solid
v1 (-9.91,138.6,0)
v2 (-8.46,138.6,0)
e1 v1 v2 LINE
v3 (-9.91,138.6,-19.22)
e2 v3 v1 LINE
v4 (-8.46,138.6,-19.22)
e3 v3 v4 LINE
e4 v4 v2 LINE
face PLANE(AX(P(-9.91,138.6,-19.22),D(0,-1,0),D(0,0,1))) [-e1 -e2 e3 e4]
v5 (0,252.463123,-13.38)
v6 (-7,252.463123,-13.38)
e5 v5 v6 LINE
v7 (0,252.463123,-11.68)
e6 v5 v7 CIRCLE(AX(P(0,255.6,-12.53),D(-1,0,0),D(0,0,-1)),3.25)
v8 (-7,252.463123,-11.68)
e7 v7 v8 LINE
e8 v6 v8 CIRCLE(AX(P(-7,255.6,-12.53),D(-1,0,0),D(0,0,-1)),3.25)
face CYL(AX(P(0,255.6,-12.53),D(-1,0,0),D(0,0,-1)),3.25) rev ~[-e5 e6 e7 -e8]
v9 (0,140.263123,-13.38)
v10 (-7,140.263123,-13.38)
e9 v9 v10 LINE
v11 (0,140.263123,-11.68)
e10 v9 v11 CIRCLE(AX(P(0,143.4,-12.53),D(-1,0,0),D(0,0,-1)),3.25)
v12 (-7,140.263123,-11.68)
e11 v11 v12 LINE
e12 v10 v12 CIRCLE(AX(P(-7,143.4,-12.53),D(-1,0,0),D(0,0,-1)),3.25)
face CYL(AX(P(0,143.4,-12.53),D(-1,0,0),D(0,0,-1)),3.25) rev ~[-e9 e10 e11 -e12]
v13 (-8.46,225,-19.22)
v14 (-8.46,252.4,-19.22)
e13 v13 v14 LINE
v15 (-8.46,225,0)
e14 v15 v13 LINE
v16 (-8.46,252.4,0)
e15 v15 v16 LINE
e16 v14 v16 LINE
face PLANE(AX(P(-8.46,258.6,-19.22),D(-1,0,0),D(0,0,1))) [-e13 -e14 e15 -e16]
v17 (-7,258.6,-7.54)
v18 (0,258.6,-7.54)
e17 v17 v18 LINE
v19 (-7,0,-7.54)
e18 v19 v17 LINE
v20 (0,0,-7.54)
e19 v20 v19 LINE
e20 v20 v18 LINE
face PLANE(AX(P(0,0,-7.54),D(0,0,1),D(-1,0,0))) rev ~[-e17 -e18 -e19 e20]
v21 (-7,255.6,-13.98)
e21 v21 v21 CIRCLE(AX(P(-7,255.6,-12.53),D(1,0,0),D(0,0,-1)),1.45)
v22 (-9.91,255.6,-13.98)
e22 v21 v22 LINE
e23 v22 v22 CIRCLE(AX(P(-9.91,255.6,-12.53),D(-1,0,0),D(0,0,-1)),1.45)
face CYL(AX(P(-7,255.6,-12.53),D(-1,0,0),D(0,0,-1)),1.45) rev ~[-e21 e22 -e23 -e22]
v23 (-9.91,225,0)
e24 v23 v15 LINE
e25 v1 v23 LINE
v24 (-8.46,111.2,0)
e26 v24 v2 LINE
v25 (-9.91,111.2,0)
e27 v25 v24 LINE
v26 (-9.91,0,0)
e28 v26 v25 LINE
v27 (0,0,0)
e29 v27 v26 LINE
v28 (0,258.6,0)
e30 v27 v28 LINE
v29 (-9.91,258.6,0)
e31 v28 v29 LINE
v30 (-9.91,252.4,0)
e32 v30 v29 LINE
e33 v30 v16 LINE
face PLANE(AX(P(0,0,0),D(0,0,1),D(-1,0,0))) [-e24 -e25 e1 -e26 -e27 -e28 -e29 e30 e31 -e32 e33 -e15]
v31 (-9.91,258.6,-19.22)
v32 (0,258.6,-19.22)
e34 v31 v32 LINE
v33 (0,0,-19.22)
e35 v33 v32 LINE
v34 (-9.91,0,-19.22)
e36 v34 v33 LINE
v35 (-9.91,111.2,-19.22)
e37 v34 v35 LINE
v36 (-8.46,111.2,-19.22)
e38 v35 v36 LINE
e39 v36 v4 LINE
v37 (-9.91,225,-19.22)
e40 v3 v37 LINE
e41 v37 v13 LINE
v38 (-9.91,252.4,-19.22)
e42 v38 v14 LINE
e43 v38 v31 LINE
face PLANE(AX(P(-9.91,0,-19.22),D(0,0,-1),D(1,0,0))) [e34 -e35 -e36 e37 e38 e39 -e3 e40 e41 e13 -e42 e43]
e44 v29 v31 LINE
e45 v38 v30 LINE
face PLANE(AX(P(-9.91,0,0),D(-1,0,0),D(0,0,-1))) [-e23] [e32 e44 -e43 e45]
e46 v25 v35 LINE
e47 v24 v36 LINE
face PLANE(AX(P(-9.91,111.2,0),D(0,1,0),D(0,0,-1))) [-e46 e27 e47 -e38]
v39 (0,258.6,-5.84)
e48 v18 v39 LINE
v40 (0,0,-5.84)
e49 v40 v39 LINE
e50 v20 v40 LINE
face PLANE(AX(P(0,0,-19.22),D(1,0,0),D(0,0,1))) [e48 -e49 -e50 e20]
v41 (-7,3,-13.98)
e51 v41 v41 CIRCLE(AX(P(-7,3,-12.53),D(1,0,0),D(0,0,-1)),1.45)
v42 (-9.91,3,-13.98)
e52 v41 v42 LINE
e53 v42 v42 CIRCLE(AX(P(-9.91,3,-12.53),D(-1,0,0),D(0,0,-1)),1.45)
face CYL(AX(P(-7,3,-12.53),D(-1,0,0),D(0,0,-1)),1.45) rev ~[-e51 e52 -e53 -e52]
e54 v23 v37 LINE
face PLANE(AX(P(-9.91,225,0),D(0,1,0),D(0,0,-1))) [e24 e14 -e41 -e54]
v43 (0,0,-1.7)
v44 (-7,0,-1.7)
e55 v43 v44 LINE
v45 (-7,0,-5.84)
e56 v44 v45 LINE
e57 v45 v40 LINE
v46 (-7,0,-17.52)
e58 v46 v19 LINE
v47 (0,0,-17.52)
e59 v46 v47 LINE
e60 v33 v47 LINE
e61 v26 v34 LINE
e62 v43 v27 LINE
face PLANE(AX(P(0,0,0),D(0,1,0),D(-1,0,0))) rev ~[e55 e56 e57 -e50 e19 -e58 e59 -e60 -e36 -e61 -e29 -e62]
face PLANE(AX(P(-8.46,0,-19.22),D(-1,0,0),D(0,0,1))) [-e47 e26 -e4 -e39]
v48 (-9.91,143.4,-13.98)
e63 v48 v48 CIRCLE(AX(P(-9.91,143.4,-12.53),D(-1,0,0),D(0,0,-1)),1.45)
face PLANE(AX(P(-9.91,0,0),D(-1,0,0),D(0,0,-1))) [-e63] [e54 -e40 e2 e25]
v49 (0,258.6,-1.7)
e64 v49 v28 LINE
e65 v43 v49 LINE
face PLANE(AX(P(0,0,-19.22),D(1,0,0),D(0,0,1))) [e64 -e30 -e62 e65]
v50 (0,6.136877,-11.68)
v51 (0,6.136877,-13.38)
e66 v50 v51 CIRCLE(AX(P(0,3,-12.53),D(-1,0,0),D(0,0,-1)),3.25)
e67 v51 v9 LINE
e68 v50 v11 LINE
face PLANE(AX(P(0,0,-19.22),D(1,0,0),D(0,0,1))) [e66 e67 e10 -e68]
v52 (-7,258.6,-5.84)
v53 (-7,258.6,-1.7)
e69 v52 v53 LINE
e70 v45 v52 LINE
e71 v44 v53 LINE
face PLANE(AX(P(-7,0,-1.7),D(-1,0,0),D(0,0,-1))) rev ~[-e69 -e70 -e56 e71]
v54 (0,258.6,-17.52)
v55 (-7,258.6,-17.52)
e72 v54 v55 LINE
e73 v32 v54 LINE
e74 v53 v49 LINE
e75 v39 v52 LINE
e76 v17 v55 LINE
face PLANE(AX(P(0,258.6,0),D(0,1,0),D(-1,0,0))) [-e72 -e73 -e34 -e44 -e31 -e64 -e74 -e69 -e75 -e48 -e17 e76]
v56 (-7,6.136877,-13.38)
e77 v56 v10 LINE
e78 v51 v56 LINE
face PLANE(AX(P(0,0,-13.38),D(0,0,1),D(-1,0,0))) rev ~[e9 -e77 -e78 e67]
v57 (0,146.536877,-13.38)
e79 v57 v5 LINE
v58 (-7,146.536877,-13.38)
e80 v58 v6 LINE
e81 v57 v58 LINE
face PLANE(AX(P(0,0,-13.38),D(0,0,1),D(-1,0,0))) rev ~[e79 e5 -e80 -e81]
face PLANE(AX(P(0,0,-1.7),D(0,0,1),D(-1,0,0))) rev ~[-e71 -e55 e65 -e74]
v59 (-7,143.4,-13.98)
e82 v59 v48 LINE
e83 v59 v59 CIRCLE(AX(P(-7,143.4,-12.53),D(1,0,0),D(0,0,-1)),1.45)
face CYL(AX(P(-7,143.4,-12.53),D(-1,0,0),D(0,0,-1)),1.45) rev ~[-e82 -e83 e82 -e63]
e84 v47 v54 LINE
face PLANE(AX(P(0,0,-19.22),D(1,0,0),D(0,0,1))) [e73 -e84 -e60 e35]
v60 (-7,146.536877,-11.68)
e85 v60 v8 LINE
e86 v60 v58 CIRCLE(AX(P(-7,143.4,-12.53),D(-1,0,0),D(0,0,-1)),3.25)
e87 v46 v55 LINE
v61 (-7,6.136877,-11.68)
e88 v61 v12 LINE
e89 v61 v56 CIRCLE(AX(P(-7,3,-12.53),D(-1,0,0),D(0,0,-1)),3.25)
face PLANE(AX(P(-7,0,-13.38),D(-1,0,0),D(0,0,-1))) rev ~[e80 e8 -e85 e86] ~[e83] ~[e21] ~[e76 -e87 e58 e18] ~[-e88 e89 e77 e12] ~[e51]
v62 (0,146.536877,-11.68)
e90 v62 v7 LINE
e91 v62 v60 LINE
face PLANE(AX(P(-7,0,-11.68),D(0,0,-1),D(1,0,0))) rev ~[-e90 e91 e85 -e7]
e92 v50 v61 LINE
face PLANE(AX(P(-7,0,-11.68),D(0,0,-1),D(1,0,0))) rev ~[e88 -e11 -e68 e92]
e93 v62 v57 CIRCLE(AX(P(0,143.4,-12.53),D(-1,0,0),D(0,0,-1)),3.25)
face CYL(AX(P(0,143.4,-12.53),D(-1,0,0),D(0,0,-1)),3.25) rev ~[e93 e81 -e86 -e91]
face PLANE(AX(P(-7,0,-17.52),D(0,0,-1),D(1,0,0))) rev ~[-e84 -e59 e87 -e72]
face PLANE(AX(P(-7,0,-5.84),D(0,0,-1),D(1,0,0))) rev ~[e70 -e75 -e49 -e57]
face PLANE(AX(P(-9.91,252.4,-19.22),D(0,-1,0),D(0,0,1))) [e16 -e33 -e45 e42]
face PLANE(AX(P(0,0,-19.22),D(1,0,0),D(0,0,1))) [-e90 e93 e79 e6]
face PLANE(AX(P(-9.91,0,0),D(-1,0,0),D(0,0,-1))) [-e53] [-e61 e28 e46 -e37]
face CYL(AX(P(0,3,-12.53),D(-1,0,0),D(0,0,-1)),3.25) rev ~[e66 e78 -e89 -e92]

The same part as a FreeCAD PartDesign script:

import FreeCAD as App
import Part
import Sketcher
from FreeCAD import Vector

doc = App.newDocument("Part")
body = doc.addObject("PartDesign::Body", "Body")

# Sketch on XZ plane
sketch1 = doc.addObject("Sketcher::SketchObject", "Sketch")
body.addObject(sketch1)
sketch1.AttachmentSupport = (doc.XZ_Plane, [""])
sketch1.MapMode = "FlatFace"
sketch1.addGeometry(Part.LineSegment(Vector(-10, 0, 0), Vector(0, 0, 0)), False)
sketch1.addGeometry(Part.LineSegment(Vector(0, 0, 0), Vector(0, -19, 0)), False)
sketch1.addGeometry(Part.LineSegment(Vector(0, -19, 0), Vector(-10, -19, 0)), False)
sketch1.addGeometry(Part.LineSegment(Vector(-10, -19, 0), Vector(-10, 0, 0)), False)
sketch1.addConstraint(Sketcher.Constraint("Coincident", 0, 2, 1, 1))
sketch1.addConstraint(Sketcher.Constraint("Coincident", 1, 2, 2, 1))
sketch1.addConstraint(Sketcher.Constraint("Coincident", 2, 2, 3, 1))
sketch1.addConstraint(Sketcher.Constraint("Coincident", 3, 2, 0, 1))
sketch1.addConstraint(Sketcher.Constraint("Horizontal", 0))
sketch1.addConstraint(Sketcher.Constraint("Vertical", 1))
sketch1.addConstraint(Sketcher.Constraint("Horizontal", 2))
sketch1.addConstraint(Sketcher.Constraint("Vertical", 3))
sketch1.addConstraint(Sketcher.Constraint("Coincident", 0, 2, -1, 1))
sketch1.addConstraint(Sketcher.Constraint("DistanceX", 0, 1, 0, 2, 9.91))
sketch1.addConstraint(Sketcher.Constraint("DistanceY", 1, 2, 1, 1, 19.22))
pad1 = doc.addObject("PartDesign::Pad", "Pad")
body.addObject(pad1)
pad1.Profile = sketch1
pad1.Length = 258.6
pad1.Reversed = True

# Sketch on XZ plane
sketch2 = doc.addObject("Sketcher::SketchObject", "Sketch001")
body.addObject(sketch2)
sketch2.AttachmentSupport = (doc.XZ_Plane, [""])
sketch2.MapMode = "FlatFace"
sketch2.addGeometry(Part.LineSegment(Vector(0, -5.8, 0), Vector(0, -1.7, 0)), False)
sketch2.addGeometry(Part.LineSegment(Vector(0, -1.7, 0), Vector(-7, -1.7, 0)), False)
sketch2.addGeometry(Part.LineSegment(Vector(-7, -1.7, 0), Vector(-7, -5.8, 0)), False)
sketch2.addGeometry(Part.LineSegment(Vector(-7, -5.8, 0), Vector(0, -5.8, 0)), False)
sketch2.addConstraint(Sketcher.Constraint("Coincident", 0, 2, 1, 1))
sketch2.addConstraint(Sketcher.Constraint("Coincident", 1, 2, 2, 1))
sketch2.addConstraint(Sketcher.Constraint("Coincident", 2, 2, 3, 1))
sketch2.addConstraint(Sketcher.Constraint("Coincident", 3, 2, 0, 1))
sketch2.addConstraint(Sketcher.Constraint("Vertical", 0))
sketch2.addConstraint(Sketcher.Constraint("Horizontal", 1))
sketch2.addConstraint(Sketcher.Constraint("Vertical", 2))
sketch2.addConstraint(Sketcher.Constraint("Horizontal", 3))
sketch2.addConstraint(Sketcher.Constraint("PointOnObject", 0, 2, -2))
sketch2.addConstraint(Sketcher.Constraint("DistanceX", 1, 2, 1, 1, 7.0))
sketch2.addConstraint(Sketcher.Constraint("DistanceY", 0, 1, 0, 2, 4.14))
sketch2.addConstraint(Sketcher.Constraint("DistanceY", 0, 2, -1, 1, 1.7))
pocket1 = doc.addObject("PartDesign::Pocket", "Pocket")
body.addObject(pocket1)
pocket1.Profile = sketch2
pocket1.Type = "ThroughAll"

# Sketch on XZ plane
sketch3 = doc.addObject("Sketcher::SketchObject", "Sketch002")
body.addObject(sketch3)
sketch3.AttachmentSupport = (doc.XZ_Plane, [""])
sketch3.MapMode = "FlatFace"
sketch3.addGeometry(Part.LineSegment(Vector(0, -11.7, 0), Vector(0, -7.5, 0)), False)
sketch3.addGeometry(Part.LineSegment(Vector(0, -7.5, 0), Vector(-7, -7.5, 0)), False)
sketch3.addGeometry(Part.LineSegment(Vector(-7, -7.5, 0), Vector(-7, -11.7, 0)), False)
sketch3.addGeometry(Part.LineSegment(Vector(-7, -11.7, 0), Vector(0, -11.7, 0)), False)
sketch3.addConstraint(Sketcher.Constraint("Coincident", 0, 2, 1, 1))
sketch3.addConstraint(Sketcher.Constraint("Coincident", 1, 2, 2, 1))
sketch3.addConstraint(Sketcher.Constraint("Coincident", 2, 2, 3, 1))
sketch3.addConstraint(Sketcher.Constraint("Coincident", 3, 2, 0, 1))
sketch3.addConstraint(Sketcher.Constraint("Vertical", 0))
sketch3.addConstraint(Sketcher.Constraint("Horizontal", 1))
sketch3.addConstraint(Sketcher.Constraint("Vertical", 2))
sketch3.addConstraint(Sketcher.Constraint("Horizontal", 3))
sketch3.addConstraint(Sketcher.Constraint("PointOnObject", 0, 2, -2))
sketch3.addConstraint(Sketcher.Constraint("DistanceY", 0, 1, 0, 2, 4.14))
sketch3.addConstraint(Sketcher.Constraint("DistanceX", 1, 2, 1, 1, 7.0))
sketch3.addConstraint(Sketcher.Constraint("DistanceY", 0, 2, -1, 1, 7.54))
pocket2 = doc.addObject("PartDesign::Pocket", "Pocket001")
body.addObject(pocket2)
pocket2.Profile = sketch3
pocket2.Type = "ThroughAll"

# Sketch on XZ plane
sketch4 = doc.addObject("Sketcher::SketchObject", "Sketch003")
body.addObject(sketch4)
sketch4.AttachmentSupport = (doc.XZ_Plane, [""])
sketch4.MapMode = "FlatFace"
sketch4.addGeometry(Part.LineSegment(Vector(0, -17.5, 0), Vector(0, -13.4, 0)), False)
sketch4.addGeometry(Part.LineSegment(Vector(0, -13.4, 0), Vector(-7, -13.4, 0)), False)
sketch4.addGeometry(Part.LineSegment(Vector(-7, -13.4, 0), Vector(-7, -17.5, 0)), False)
sketch4.addGeometry(Part.LineSegment(Vector(-7, -17.5, 0), Vector(0, -17.5, 0)), False)
sketch4.addConstraint(Sketcher.Constraint("Coincident", 0, 2, 1, 1))
sketch4.addConstraint(Sketcher.Constraint("Coincident", 1, 2, 2, 1))
sketch4.addConstraint(Sketcher.Constraint("Coincident", 2, 2, 3, 1))
sketch4.addConstraint(Sketcher.Constraint("Coincident", 3, 2, 0, 1))
sketch4.addConstraint(Sketcher.Constraint("Vertical", 0))
sketch4.addConstraint(Sketcher.Constraint("Horizontal", 1))
sketch4.addConstraint(Sketcher.Constraint("Vertical", 2))
sketch4.addConstraint(Sketcher.Constraint("Horizontal", 3))
sketch4.addConstraint(Sketcher.Constraint("PointOnObject", 0, 2, -2))
sketch4.addConstraint(Sketcher.Constraint("DistanceY", 0, 1, 0, 2, 4.14))
sketch4.addConstraint(Sketcher.Constraint("DistanceX", 1, 2, 1, 1, 7.0))
sketch4.addConstraint(Sketcher.Constraint("DistanceY", 0, 2, -1, 1, 13.38))
pocket3 = doc.addObject("PartDesign::Pocket", "Pocket002")
body.addObject(pocket3)
pocket3.Profile = sketch4
pocket3.Type = "ThroughAll"

# Sketch on YZ plane
sketch5 = doc.addObject("Sketcher::SketchObject", "Sketch004")
body.addObject(sketch5)
sketch5.AttachmentSupport = (doc.YZ_Plane, [""])
sketch5.MapMode = "FlatFace"
sketch5.addGeometry(Part.Circle(Vector(3, -12.5, 0), Vector(0, 0, 1), 1.4), False)
sketch5.addConstraint(Sketcher.Constraint("Diameter", 0, 2.9))
sketch5.addConstraint(Sketcher.Constraint("DistanceX", -1, 1, 0, 3, 3.0))
sketch5.addConstraint(Sketcher.Constraint("DistanceY", 0, 3, -1, 1, 12.53))
doc.recompute()
hole = doc.addObject("PartDesign::Hole", "Hole")
body.addObject(hole)
hole.Profile = sketch5
hole.ThreadType = "None"
hole.Diameter = 2.9
hole.DepthType = "ThroughAll"
hole.HoleCutType = "Counterbore"
hole.HoleCutDiameter = 6.5
hole.HoleCutDepth = 7

# Sketch on YZ plane
sketch6 = doc.addObject("Sketcher::SketchObject", "Sketch005")
body.addObject(sketch6)
sketch6.AttachmentSupport = (doc.YZ_Plane, [""])
sketch6.MapMode = "FlatFace"
sketch6.addGeometry(Part.Circle(Vector(143.4, -12.5, 0), Vector(0, 0, 1), 1.4), False)
sketch6.addConstraint(Sketcher.Constraint("Diameter", 0, 2.9))
sketch6.addConstraint(Sketcher.Constraint("DistanceX", -1, 1, 0, 3, 143.4))
sketch6.addConstraint(Sketcher.Constraint("DistanceY", 0, 3, -1, 1, 12.53))
doc.recompute()
hole2 = doc.addObject("PartDesign::Hole", "Hole001")
body.addObject(hole2)
hole2.Profile = sketch6
hole2.ThreadType = "None"
hole2.Diameter = 2.9
hole2.DepthType = "ThroughAll"
hole2.HoleCutType = "Counterbore"
hole2.HoleCutDiameter = 6.5
hole2.HoleCutDepth = 7

# Sketch on YZ plane
sketch7 = doc.addObject("Sketcher::SketchObject", "Sketch006")
body.addObject(sketch7)
sketch7.AttachmentSupport = (doc.YZ_Plane, [""])
sketch7.MapMode = "FlatFace"
sketch7.addGeometry(Part.Circle(Vector(255.6, -12.5, 0), Vector(0, 0, 1), 1.4), False)
sketch7.addConstraint(Sketcher.Constraint("Diameter", 0, 2.9))
sketch7.addConstraint(Sketcher.Constraint("DistanceX", -1, 1, 0, 3, 255.6))
sketch7.addConstraint(Sketcher.Constraint("DistanceY", 0, 3, -1, 1, 12.53))
doc.recompute()
hole3 = doc.addObject("PartDesign::Hole", "Hole002")
body.addObject(hole3)
hole3.Profile = sketch7
hole3.ThreadType = "None"
hole3.Diameter = 2.9
hole3.DepthType = "ThroughAll"
hole3.HoleCutType = "Counterbore"
hole3.HoleCutDiameter = 6.5
hole3.HoleCutDepth = 7

# Sketch on YZ plane
sketch8 = doc.addObject("Sketcher::SketchObject", "Sketch007")
body.addObject(sketch8)
sketch8.AttachmentSupport = (doc.YZ_Plane, [""])
sketch8.MapMode = "FlatFace"
sketch8.AttachmentOffset = App.Placement(Vector(0, 0, -9.91), App.Rotation())
sketch8.addGeometry(Part.LineSegment(Vector(139, -19, 0), Vector(111, -19, 0)), False)
sketch8.addGeometry(Part.LineSegment(Vector(111, -19, 0), Vector(111, 0, 0)), False)
sketch8.addGeometry(Part.LineSegment(Vector(111, 0, 0), Vector(139, 0, 0)), False)
sketch8.addGeometry(Part.LineSegment(Vector(139, 0, 0), Vector(139, -19, 0)), False)
sketch8.addConstraint(Sketcher.Constraint("Coincident", 0, 2, 1, 1))
sketch8.addConstraint(Sketcher.Constraint("Coincident", 1, 2, 2, 1))
sketch8.addConstraint(Sketcher.Constraint("Coincident", 2, 2, 3, 1))
sketch8.addConstraint(Sketcher.Constraint("Coincident", 3, 2, 0, 1))
sketch8.addConstraint(Sketcher.Constraint("Horizontal", 0))
sketch8.addConstraint(Sketcher.Constraint("Vertical", 1))
sketch8.addConstraint(Sketcher.Constraint("Horizontal", 2))
sketch8.addConstraint(Sketcher.Constraint("Vertical", 3))
sketch8.addConstraint(Sketcher.Constraint("PointOnObject", 1, 2, -1))
sketch8.addConstraint(Sketcher.Constraint("DistanceX", -1, 1, 0, 2, 111.2))
sketch8.addConstraint(Sketcher.Constraint("DistanceX", -1, 1, 2, 2, 138.6))
sketch8.addConstraint(Sketcher.Constraint("DistanceY", 1, 1, 1, 2, 19.22))
pocket4 = doc.addObject("PartDesign::Pocket", "Pocket003")
body.addObject(pocket4)
pocket4.Profile = sketch8
pocket4.Length = 1.45
pocket4.Reversed = True

# Sketch on YZ plane
sketch9 = doc.addObject("Sketcher::SketchObject", "Sketch008")
body.addObject(sketch9)
sketch9.AttachmentSupport = (doc.YZ_Plane, [""])
sketch9.MapMode = "FlatFace"
sketch9.AttachmentOffset = App.Placement(Vector(0, 0, -9.91), App.Rotation())
sketch9.addGeometry(Part.LineSegment(Vector(252, -19, 0), Vector(225, -19, 0)), False)
sketch9.addGeometry(Part.LineSegment(Vector(225, -19, 0), Vector(225, 0, 0)), False)
sketch9.addGeometry(Part.LineSegment(Vector(225, 0, 0), Vector(252, 0, 0)), False)
sketch9.addGeometry(Part.LineSegment(Vector(252, 0, 0), Vector(252, -19, 0)), False)
sketch9.addConstraint(Sketcher.Constraint("Coincident", 0, 2, 1, 1))
sketch9.addConstraint(Sketcher.Constraint("Coincident", 1, 2, 2, 1))
sketch9.addConstraint(Sketcher.Constraint("Coincident", 2, 2, 3, 1))
sketch9.addConstraint(Sketcher.Constraint("Coincident", 3, 2, 0, 1))
sketch9.addConstraint(Sketcher.Constraint("Horizontal", 0))
sketch9.addConstraint(Sketcher.Constraint("Vertical", 1))
sketch9.addConstraint(Sketcher.Constraint("Horizontal", 2))
sketch9.addConstraint(Sketcher.Constraint("Vertical", 3))
sketch9.addConstraint(Sketcher.Constraint("PointOnObject", 1, 2, -1))
sketch9.addConstraint(Sketcher.Constraint("DistanceX", -1, 1, 0, 2, 225.0))
sketch9.addConstraint(Sketcher.Constraint("DistanceX", -1, 1, 2, 2, 252.4))
sketch9.addConstraint(Sketcher.Constraint("DistanceY", 1, 1, 1, 2, 19.22))
pocket5 = doc.addObject("PartDesign::Pocket", "Pocket004")
body.addObject(pocket5)
pocket5.Profile = sketch9
pocket5.Length = 1.45
pocket5.Reversed = True

doc.recompute()
